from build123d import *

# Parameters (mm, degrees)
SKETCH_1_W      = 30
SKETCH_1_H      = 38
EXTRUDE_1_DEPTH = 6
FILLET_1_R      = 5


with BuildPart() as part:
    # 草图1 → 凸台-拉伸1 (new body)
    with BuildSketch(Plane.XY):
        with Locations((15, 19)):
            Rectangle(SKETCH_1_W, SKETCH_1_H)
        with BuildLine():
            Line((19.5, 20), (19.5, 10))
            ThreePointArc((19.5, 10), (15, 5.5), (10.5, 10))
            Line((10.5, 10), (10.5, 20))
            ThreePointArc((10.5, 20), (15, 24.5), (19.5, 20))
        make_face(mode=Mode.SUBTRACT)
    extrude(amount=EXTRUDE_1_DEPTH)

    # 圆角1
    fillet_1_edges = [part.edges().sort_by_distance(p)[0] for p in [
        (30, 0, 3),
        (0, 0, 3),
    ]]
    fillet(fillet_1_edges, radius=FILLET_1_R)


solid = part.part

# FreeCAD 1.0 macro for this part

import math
import FreeCAD as App
import Part
import Sketcher
from FreeCAD import Vector


def edges_at(feature, points):
    """Names of the edges that pass closest to the given points."""
    edges = feature.Shape.Edges
    near = lambda p: min(range(len(edges)), key=lambda i: edges[i].distToShape(Part.Vertex(*p))[0])
    return sorted({f"Edge{near(p) + 1}" for p in points})

doc = App.newDocument("Part")
params = doc.addObject("Spreadsheet::Sheet", "Params")
for row, (alias, value) in enumerate([
    ("sketch1_radius", "4.5 mm"),
    ("sketch1_width", "30 mm"),
    ("sketch1_height", "38 mm"),
    ("sketch1_height2", "10 mm"),
    ("pad1_length", "6 mm"),
    ("fillet_radius", "5 mm"),
], start=1):
    params.set(f"A{row}", alias)
    params.set(f"B{row}", "=" + value)
    params.setAlias(f"B{row}", alias)

body = doc.addObject("PartDesign::Body", "Body")

# Sketch on XY plane
sketch1 = doc.addObject("Sketcher::SketchObject", "Sketch")
body.addObject(sketch1)
sketch1.AttachmentSupport = (doc.XY_Plane, [""])
sketch1.MapMode = "FlatFace"
sketch1.addGeometry([
    Part.LineSegment(Vector(0, 38, 0), Vector(0, 0, 0)),  # 0
    Part.LineSegment(Vector(0, 0, 0), Vector(30, 0, 0)),  # 1
    Part.LineSegment(Vector(30, 0, 0), Vector(30, 38, 0)),  # 2
    Part.LineSegment(Vector(30, 38, 0), Vector(0, 38, 0)),  # 3
    Part.ArcOfCircle(Part.Circle(Vector(15, 20, 0), Vector(0, 0, 1), 4.5), math.radians(0), math.radians(180)),  # 4
    Part.LineSegment(Vector(19.5, 20, 0), Vector(19.5, 10, 0)),  # 5
    Part.ArcOfCircle(Part.Circle(Vector(15, 10, 0), Vector(0, 0, 1), 4.5), math.radians(180), math.radians(360)),  # 6
    Part.LineSegment(Vector(10.5, 10, 0), Vector(10.5, 20, 0)),  # 7
], False)
sketch1.addConstraint([
    Sketcher.Constraint("Coincident", 0, 2, 1, 1),
    Sketcher.Constraint("Coincident", 1, 2, 2, 1),
    Sketcher.Constraint("Coincident", 2, 2, 3, 1),
    Sketcher.Constraint("Coincident", 3, 2, 0, 1),
    Sketcher.Constraint("Tangent", 4, 1, 5, 1),
    Sketcher.Constraint("Tangent", 5, 2, 6, 2),
    Sketcher.Constraint("Tangent", 6, 1, 7, 1),
    Sketcher.Constraint("Tangent", 7, 2, 4, 2),
    Sketcher.Constraint("Vertical", 0),
    Sketcher.Constraint("Horizontal", 1),
    Sketcher.Constraint("Vertical", 2),
    Sketcher.Constraint("Horizontal", 3),
    Sketcher.Constraint("Vertical", 5),
    Sketcher.Constraint("Vertical", 7),
    Sketcher.Constraint("Coincident", 0, 2, -1, 1),
    Sketcher.Constraint("Radius", 4, 4.5),
    Sketcher.Constraint("DistanceX", 1, 1, 1, 2, 30.0),
    Sketcher.Constraint("DistanceY", 0, 2, 0, 1, 38.0),
    Sketcher.Constraint("DistanceY", 5, 2, 5, 1, 10.0),
    Sketcher.Constraint("DistanceX", -1, 1, 4, 3, 15.0),
    Sketcher.Constraint("DistanceY", -1, 1, 4, 3, 20.0),
])
sketch1.setExpression("Constraints[15]", "Params.sketch1_radius")
sketch1.setExpression("Constraints[16]", "Params.sketch1_width")
sketch1.setExpression("Constraints[17]", "Params.sketch1_height")
sketch1.setExpression("Constraints[18]", "Params.sketch1_height2")
pad1 = doc.addObject("PartDesign::Pad", "Pad")
body.addObject(pad1)
pad1.Profile = sketch1
pad1.setExpression("Length", "Params.pad1_length")
doc.recompute()

fillet = doc.addObject("PartDesign::Fillet", "Fillet")
body.addObject(fillet)
fillet.Base = (pad1, edges_at(pad1, [(30, 0, 3), (0, 0, 3)]))
fillet.setExpression("Radius", "Params.fillet_radius")

doc.recompute()
